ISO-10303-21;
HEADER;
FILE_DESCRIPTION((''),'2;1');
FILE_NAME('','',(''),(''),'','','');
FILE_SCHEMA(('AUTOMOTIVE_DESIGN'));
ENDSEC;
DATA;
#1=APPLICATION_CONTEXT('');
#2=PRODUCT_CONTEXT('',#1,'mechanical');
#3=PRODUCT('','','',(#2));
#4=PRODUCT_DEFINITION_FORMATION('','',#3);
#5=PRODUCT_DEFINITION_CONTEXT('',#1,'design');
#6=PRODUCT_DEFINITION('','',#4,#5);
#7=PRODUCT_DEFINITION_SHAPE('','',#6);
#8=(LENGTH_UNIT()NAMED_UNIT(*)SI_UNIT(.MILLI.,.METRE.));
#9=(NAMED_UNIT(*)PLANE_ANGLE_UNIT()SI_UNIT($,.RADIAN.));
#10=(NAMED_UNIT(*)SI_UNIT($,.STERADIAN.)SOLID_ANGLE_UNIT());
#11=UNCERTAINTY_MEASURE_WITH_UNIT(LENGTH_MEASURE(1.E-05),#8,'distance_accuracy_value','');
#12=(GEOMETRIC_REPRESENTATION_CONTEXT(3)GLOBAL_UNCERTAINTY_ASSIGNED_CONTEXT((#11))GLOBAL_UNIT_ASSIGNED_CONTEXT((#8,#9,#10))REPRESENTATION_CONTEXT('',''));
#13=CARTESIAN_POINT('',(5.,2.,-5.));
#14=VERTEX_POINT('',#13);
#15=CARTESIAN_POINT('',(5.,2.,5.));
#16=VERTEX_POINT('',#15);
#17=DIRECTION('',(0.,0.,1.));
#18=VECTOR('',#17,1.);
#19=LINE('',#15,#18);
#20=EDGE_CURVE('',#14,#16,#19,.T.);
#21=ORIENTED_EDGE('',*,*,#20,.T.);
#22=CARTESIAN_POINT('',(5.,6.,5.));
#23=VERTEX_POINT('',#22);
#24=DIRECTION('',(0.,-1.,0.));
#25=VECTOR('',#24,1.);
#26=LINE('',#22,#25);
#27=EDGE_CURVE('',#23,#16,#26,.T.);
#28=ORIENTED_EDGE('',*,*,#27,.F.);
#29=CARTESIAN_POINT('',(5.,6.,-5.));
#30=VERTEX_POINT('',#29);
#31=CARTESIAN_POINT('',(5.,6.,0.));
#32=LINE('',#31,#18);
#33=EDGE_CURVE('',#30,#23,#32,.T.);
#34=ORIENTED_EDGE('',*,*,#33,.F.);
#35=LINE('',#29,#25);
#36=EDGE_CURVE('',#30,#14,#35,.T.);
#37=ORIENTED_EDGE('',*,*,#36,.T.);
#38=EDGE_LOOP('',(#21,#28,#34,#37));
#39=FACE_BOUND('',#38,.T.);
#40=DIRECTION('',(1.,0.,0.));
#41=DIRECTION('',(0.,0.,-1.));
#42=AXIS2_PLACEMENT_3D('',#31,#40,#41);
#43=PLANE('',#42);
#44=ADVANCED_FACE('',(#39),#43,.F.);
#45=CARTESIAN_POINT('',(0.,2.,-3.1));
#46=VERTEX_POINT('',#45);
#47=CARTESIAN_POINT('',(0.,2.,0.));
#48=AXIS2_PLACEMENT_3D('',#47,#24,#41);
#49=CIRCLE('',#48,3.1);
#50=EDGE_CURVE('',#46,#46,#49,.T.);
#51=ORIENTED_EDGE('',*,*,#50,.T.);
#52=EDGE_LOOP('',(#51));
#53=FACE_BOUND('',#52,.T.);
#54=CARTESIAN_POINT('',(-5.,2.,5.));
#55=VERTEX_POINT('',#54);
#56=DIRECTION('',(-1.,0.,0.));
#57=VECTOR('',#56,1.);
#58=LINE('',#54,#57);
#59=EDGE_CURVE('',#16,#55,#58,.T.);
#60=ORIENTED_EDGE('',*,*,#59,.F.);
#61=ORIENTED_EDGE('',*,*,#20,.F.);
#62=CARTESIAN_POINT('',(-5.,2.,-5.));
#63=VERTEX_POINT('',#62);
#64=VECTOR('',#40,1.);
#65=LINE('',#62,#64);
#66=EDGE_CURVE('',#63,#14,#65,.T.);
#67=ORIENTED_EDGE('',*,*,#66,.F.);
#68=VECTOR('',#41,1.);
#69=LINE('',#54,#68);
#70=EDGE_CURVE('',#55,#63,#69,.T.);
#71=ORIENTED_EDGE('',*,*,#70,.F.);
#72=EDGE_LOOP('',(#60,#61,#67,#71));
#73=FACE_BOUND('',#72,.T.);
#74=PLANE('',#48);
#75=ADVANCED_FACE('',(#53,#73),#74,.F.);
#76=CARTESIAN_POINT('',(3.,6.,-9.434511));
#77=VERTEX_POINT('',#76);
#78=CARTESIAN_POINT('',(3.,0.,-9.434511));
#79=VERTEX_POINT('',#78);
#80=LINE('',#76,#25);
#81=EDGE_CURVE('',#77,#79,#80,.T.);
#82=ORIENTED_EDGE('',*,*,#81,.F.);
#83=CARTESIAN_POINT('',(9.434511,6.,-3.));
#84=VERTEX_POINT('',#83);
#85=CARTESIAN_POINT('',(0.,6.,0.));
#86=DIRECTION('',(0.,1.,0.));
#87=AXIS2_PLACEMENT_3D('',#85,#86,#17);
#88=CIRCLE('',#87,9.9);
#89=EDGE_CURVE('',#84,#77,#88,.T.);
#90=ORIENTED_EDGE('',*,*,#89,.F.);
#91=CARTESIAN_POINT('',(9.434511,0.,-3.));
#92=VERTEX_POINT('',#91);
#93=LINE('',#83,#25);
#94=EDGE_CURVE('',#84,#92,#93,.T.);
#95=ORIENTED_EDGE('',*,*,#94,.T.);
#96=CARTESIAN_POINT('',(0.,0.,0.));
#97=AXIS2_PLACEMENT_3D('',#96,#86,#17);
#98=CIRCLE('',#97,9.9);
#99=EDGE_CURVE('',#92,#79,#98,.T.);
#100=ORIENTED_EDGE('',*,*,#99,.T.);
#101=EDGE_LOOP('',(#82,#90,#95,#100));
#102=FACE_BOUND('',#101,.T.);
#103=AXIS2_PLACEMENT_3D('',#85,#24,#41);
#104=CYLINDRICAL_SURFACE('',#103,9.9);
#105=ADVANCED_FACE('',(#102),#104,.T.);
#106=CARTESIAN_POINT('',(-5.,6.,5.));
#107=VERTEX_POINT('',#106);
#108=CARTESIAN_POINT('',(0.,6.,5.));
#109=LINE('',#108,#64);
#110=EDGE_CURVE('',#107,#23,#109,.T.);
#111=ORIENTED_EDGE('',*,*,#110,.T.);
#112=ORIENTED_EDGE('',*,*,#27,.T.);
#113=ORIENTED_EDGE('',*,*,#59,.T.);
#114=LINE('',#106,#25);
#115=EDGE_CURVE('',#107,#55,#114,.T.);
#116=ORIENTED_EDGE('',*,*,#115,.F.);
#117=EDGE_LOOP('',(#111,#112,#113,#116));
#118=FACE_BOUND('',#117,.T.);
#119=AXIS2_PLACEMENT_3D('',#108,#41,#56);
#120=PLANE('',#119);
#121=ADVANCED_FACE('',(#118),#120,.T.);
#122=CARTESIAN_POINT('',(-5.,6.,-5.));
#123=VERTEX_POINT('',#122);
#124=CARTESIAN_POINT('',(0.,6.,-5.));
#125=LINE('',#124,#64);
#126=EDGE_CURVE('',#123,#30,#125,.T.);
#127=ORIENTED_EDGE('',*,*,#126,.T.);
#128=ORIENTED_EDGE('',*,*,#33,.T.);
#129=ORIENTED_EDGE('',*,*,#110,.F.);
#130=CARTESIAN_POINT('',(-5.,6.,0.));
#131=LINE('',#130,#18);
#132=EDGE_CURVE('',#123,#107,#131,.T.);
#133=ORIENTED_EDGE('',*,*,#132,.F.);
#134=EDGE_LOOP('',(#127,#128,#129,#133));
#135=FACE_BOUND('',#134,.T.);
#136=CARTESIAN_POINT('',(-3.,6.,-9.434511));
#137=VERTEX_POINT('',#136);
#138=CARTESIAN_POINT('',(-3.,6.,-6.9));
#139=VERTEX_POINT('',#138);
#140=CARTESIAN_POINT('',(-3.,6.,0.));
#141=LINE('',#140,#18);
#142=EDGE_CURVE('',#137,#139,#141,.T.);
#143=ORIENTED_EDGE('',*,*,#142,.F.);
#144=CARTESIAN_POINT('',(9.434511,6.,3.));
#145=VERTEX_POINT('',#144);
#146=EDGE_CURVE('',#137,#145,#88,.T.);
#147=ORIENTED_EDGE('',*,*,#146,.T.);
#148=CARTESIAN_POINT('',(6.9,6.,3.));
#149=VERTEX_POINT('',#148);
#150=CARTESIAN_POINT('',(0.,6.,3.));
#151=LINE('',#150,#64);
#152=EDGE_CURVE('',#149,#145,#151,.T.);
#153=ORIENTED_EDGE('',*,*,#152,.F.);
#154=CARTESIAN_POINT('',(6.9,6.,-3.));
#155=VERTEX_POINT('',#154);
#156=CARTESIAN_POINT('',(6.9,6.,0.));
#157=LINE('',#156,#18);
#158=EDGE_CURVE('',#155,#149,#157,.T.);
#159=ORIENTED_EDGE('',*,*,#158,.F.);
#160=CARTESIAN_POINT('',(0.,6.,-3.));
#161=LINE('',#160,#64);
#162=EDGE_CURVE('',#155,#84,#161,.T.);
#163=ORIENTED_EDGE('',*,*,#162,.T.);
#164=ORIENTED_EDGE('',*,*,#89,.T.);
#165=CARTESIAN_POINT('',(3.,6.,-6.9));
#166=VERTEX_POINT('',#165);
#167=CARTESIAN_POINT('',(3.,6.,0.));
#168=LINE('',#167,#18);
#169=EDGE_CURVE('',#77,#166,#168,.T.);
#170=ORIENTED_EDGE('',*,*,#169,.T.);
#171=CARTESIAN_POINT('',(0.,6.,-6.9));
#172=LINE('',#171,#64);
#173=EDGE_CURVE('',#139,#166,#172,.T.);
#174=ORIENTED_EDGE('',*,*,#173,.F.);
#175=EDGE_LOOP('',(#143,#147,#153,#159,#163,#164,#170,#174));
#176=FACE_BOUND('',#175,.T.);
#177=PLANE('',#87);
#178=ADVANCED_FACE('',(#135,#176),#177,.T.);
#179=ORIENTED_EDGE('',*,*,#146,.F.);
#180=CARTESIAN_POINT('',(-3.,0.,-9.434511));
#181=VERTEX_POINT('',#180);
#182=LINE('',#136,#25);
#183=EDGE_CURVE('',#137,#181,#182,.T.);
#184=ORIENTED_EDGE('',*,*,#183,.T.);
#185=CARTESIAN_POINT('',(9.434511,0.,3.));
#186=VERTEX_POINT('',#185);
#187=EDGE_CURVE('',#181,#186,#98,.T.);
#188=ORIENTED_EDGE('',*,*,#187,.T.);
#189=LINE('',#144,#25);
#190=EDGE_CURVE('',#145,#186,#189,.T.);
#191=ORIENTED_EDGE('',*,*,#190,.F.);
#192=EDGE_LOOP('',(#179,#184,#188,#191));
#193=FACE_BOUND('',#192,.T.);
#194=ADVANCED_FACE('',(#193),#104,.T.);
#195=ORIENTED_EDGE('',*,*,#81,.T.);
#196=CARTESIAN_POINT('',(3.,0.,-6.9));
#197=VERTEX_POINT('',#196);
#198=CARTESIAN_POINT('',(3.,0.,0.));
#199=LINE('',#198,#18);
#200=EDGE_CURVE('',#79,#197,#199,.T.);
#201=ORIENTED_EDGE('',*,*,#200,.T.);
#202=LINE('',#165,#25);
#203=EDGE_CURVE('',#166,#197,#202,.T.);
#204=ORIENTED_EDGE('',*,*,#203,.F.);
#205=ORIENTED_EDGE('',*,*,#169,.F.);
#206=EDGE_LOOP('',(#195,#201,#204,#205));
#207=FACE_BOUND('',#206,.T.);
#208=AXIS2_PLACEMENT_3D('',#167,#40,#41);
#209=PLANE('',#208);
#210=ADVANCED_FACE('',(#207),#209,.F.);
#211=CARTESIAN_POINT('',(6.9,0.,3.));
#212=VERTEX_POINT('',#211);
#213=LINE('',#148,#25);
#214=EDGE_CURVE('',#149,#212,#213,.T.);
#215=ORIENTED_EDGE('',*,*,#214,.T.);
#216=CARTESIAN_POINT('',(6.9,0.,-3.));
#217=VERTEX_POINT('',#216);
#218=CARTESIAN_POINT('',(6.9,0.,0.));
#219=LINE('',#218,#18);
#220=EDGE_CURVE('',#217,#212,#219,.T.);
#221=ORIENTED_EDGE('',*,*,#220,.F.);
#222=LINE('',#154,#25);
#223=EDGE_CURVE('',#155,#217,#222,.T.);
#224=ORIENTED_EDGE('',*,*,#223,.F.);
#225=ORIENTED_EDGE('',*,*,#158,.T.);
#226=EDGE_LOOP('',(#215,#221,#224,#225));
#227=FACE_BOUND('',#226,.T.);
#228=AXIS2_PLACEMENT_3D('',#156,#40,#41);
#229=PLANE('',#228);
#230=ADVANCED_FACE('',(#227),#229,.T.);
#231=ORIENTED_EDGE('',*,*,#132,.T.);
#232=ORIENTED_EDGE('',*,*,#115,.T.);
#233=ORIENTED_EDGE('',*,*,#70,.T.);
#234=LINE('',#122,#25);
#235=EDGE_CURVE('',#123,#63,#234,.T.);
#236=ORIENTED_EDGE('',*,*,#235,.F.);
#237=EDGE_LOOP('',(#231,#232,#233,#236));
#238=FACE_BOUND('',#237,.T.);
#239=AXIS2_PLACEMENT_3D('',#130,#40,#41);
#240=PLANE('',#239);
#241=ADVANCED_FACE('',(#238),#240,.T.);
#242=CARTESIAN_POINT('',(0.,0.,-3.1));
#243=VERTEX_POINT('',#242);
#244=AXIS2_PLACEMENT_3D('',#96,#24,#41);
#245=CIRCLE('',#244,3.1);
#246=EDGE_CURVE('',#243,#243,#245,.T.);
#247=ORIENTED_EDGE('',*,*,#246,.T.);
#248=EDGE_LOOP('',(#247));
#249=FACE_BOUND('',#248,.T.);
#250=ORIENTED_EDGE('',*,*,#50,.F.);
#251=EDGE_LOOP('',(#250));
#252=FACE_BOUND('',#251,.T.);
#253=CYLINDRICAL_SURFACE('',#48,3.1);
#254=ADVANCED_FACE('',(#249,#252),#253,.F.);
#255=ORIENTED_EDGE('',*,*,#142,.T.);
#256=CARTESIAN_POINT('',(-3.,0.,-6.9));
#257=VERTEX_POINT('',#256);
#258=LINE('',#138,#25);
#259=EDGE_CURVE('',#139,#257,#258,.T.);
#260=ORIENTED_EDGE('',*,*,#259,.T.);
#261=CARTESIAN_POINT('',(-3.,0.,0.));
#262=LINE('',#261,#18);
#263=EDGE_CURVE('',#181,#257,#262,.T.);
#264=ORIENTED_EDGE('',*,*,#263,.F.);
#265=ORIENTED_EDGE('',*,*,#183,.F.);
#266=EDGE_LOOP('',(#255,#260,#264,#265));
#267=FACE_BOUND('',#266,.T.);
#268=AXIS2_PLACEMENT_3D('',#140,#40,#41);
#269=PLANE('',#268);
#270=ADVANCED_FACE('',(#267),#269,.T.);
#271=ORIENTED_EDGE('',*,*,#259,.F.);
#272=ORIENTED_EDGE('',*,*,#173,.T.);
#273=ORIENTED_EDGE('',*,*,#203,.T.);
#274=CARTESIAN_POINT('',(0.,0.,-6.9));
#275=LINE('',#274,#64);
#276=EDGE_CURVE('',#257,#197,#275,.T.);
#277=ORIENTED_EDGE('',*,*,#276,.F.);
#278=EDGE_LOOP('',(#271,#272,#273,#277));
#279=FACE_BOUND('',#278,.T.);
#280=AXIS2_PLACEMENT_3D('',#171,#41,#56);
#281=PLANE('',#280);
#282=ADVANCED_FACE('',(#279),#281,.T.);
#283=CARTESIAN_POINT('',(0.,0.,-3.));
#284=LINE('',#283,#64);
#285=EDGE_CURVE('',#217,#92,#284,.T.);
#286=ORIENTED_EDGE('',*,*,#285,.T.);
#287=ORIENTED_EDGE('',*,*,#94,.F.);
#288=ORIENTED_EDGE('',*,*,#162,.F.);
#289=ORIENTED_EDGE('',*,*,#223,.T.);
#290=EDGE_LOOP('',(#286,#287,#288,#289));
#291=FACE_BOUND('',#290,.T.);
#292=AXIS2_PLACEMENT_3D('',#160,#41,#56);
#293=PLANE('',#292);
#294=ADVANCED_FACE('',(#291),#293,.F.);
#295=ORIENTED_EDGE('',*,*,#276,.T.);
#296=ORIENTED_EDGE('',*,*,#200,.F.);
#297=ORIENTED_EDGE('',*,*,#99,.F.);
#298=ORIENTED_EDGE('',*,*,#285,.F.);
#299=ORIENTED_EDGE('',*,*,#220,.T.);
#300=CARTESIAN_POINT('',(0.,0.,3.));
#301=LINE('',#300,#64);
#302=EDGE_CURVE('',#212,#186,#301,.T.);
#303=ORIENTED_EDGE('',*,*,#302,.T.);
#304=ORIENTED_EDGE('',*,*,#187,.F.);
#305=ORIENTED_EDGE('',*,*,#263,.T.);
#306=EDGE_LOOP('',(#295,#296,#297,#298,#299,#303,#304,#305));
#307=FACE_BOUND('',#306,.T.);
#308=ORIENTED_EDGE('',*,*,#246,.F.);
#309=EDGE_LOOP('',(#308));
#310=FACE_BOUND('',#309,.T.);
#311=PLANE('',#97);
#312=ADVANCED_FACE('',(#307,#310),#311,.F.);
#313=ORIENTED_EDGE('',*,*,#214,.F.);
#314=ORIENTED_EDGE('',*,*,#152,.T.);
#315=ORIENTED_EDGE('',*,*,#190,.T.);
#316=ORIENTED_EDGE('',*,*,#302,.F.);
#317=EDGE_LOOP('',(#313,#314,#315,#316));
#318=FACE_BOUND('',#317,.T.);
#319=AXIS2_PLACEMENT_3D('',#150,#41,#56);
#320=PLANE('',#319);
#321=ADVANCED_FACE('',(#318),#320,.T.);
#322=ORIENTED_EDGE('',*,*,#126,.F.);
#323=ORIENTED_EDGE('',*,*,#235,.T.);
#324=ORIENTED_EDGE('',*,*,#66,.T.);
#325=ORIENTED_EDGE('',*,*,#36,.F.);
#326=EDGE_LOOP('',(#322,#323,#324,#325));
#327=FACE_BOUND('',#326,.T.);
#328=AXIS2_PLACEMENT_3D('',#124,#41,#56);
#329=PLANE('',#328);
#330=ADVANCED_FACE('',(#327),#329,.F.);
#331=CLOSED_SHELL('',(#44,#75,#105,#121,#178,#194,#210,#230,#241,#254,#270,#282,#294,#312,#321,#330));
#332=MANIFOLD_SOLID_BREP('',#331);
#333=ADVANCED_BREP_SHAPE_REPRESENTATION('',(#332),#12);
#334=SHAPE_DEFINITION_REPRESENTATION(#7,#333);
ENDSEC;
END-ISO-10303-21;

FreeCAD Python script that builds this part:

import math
import FreeCAD as App
import Part
import Sketcher

doc = App.newDocument("Part")
body = doc.addObject("PartDesign::Body", "Body")

sketch1 = body.newObject("Sketcher::SketchObject", "Sketch")
sketch1.AttachmentSupport = (doc.getObject("XZ_Plane"), [""])
sketch1.MapMode = "FlatFace"
sketch1.addGeometry([
    Part.LineSegment(App.Vector(6.9, 3, 0), App.Vector(6.9, -3, 0)),
    Part.LineSegment(App.Vector(6.9, -3, 0), App.Vector(9.4, -3, 0)),
    Part.ArcOfCircle(Part.Circle(App.Vector(0, 0, 0), App.Vector(0, 0, 1), 9.9), math.radians(-72), math.radians(-18)),
    Part.LineSegment(App.Vector(3, -9.4, 0), App.Vector(3, -6.9, 0)),
    Part.LineSegment(App.Vector(3, -6.9, 0), App.Vector(-3, -6.9, 0)),
    Part.LineSegment(App.Vector(-3, -6.9, 0), App.Vector(-3, -9.4, 0)),
    Part.ArcOfCircle(Part.Circle(App.Vector(0, 0, 0), App.Vector(0, 0, 1), 9.9), math.radians(18), math.radians(252)),
    Part.LineSegment(App.Vector(9.4, 3, 0), App.Vector(6.9, 3, 0)),
    Part.LineSegment(App.Vector(5, 5, 0), App.Vector(-5, 5, 0)),
    Part.LineSegment(App.Vector(-5, 5, 0), App.Vector(-5, -5, 0)),
    Part.LineSegment(App.Vector(-5, -5, 0), App.Vector(5, -5, 0)),
    Part.LineSegment(App.Vector(5, -5, 0), App.Vector(5, 5, 0)),
], False)
sketch1.addConstraint([
    Sketcher.Constraint("Coincident", 0, 2, 1, 1),
    Sketcher.Constraint("Coincident", 1, 2, 2, 2),
    Sketcher.Constraint("Coincident", 2, 1, 3, 1),
    Sketcher.Constraint("Coincident", 3, 2, 4, 1),
    Sketcher.Constraint("Coincident", 4, 2, 5, 1),
    Sketcher.Constraint("Coincident", 5, 2, 6, 2),
    Sketcher.Constraint("Coincident", 6, 1, 7, 1),
    Sketcher.Constraint("Coincident", 7, 2, 0, 1),
    Sketcher.Constraint("Coincident", 8, 2, 9, 1),
    Sketcher.Constraint("Coincident", 9, 2, 10, 1),
    Sketcher.Constraint("Coincident", 10, 2, 11, 1),
    Sketcher.Constraint("Coincident", 11, 2, 8, 1),
    Sketcher.Constraint("Vertical", 0),
    Sketcher.Constraint("Horizontal", 1),
    Sketcher.Constraint("Vertical", 3),
    Sketcher.Constraint("Horizontal", 4),
    Sketcher.Constraint("Vertical", 5),
    Sketcher.Constraint("Horizontal", 7),
    Sketcher.Constraint("Horizontal", 8),
    Sketcher.Constraint("Vertical", 9),
    Sketcher.Constraint("Horizontal", 10),
    Sketcher.Constraint("Vertical", 11),
    Sketcher.Constraint("Coincident", 2, 3, -1, 1),
    Sketcher.Constraint("Coincident", 6, 3, -1, 1),
    Sketcher.Constraint("Equal", 2, 6),
    Sketcher.Constraint("Symmetric", 8, 2, 10, 2, -1, 1),
    Sketcher.Constraint("Horizontal", 2, 1, 5, 2),
    Sketcher.Constraint("Vertical", 1, 2, 6, 1),
    Sketcher.Constraint("Equal", 4, 0),
    Sketcher.Constraint("Equal", 7, 3),
    Sketcher.Constraint("Equal", 10, 9),
    Sketcher.Constraint("Radius", 2, 9.9),
    Sketcher.Constraint("DistanceX", 4, 2, 4, 1, 6.0),
    Sketcher.Constraint("DistanceX", 8, 2, 8, 1, 10.0),
    Sketcher.Constraint("DistanceX", -1, 1, 0, 2, 6.9),
])
pad1 = body.newObject("PartDesign::Pad", "Pad")
pad1.Profile = sketch1
pad1.Length = 6
pad1.Reversed = True

sketch2 = body.newObject("Sketcher::SketchObject", "Sketch001")
sketch2.AttachmentSupport = (doc.getObject("XZ_Plane"), [""])
sketch2.MapMode = "FlatFace"
sketch2.addGeometry([
    Part.LineSegment(App.Vector(-5, 5, 0), App.Vector(-5, -5, 0)),
    Part.LineSegment(App.Vector(-5, -5, 0), App.Vector(5, -5, 0)),
    Part.LineSegment(App.Vector(5, -5, 0), App.Vector(5, 5, 0)),
    Part.LineSegment(App.Vector(5, 5, 0), App.Vector(-5, 5, 0)),
    Part.Circle(App.Vector(0, 0, 0), App.Vector(0, 0, 1), 3.1),
], False)
sketch2.addConstraint([
    Sketcher.Constraint("Coincident", 0, 2, 1, 1),
    Sketcher.Constraint("Coincident", 1, 2, 2, 1),
    Sketcher.Constraint("Coincident", 2, 2, 3, 1),
    Sketcher.Constraint("Coincident", 3, 2, 0, 1),
    Sketcher.Constraint("Vertical", 0),
    Sketcher.Constraint("Horizontal", 1),
    Sketcher.Constraint("Vertical", 2),
    Sketcher.Constraint("Horizontal", 3),
    Sketcher.Constraint("Coincident", 4, 3, -1, 1),
    Sketcher.Constraint("Symmetric", 0, 2, 2, 2, -1, 1),
    Sketcher.Constraint("Equal", 3, 0),
    Sketcher.Constraint("Diameter", 4, 6.2),
    Sketcher.Constraint("DistanceX", 1, 1, 1, 2, 10.0),
])
pad2 = body.newObject("PartDesign::Pad", "Pad001")
pad2.Profile = sketch2
pad2.Length = 2
pad2.Reversed = True

doc.recompute()
